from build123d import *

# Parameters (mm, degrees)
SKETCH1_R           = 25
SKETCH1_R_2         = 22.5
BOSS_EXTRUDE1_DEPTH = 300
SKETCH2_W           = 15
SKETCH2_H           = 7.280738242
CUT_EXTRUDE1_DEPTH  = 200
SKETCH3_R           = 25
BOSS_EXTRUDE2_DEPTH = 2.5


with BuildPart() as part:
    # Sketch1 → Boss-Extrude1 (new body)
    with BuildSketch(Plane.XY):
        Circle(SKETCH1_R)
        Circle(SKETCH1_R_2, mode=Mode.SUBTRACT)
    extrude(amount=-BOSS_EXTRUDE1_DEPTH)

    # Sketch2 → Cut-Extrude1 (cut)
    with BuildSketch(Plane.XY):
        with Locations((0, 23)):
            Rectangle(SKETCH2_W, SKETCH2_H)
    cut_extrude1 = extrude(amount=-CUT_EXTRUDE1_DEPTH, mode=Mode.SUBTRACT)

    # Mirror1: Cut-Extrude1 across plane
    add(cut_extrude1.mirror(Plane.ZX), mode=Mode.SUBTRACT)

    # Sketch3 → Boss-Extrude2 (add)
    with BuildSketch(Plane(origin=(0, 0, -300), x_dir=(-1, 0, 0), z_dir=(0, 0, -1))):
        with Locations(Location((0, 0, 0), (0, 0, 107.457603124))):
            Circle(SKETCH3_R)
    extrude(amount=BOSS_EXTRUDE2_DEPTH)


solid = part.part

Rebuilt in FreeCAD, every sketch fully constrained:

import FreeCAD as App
import Part
import Sketcher
from FreeCAD import Vector


def add_polygon(sketch, points):
    """Adds a closed chain of lines whose ends are joined by coincident constraints."""
    first, n = sketch.GeometryCount, len(points)
    for a, b in zip(points, points[1:] + points[:1]):
        sketch.addGeometry(Part.LineSegment(App.Vector(*a, 0), App.Vector(*b, 0)), False)
    for i in range(n):
        sketch.addConstraint(Sketcher.Constraint("Coincident", first + i, 2, first + (i + 1) % n, 1))

doc = App.newDocument("Part")
body = doc.addObject("PartDesign::Body", "Body")

# Sketch on XY plane
sketch1 = body.newObject("Sketcher::SketchObject", "Sketch")
sketch1.AttachmentSupport = (doc.getObject("XY_Plane"), [""])
sketch1.MapMode = "FlatFace"
sketch1.addGeometry(Part.Circle(Vector(0, 0, 0), Vector(0, 0, 1), 25), False)
sketch1.addGeometry(Part.Circle(Vector(0, 0, 0), Vector(0, 0, 1), 22), False)
sketch1.addConstraint(Sketcher.Constraint("Coincident", 0, 3, -1, 1))
sketch1.addConstraint(Sketcher.Constraint("Coincident", 1, 3, -1, 1))
sketch1.addConstraint(Sketcher.Constraint("Diameter", 0, 50.0))
sketch1.addConstraint(Sketcher.Constraint("Diameter", 1, 45.0))
pad1 = body.newObject("PartDesign::Pad", "Pad")
pad1.Profile = sketch1
pad1.Length = 300
pad1.Reversed = True

# Sketch on XY plane
sketch2 = body.newObject("Sketcher::SketchObject", "Sketch001")
sketch2.AttachmentSupport = (doc.getObject("XY_Plane"), [""])
sketch2.MapMode = "FlatFace"
add_polygon(sketch2, [(-8, 27), (-8, 19), (8, 19), (8, 27)])  # lines 0-3
sketch2.addConstraint(Sketcher.Constraint("Vertical", 0))
sketch2.addConstraint(Sketcher.Constraint("Horizontal", 1))
sketch2.addConstraint(Sketcher.Constraint("Vertical", 2))
sketch2.addConstraint(Sketcher.Constraint("Horizontal", 3))
sketch2.addConstraint(Sketcher.Constraint("DistanceX", 1, 1, 1, 2, 15.0))
sketch2.addConstraint(Sketcher.Constraint("DistanceX", 0, 2, -1, 1, 7.5))
sketch2.addConstraint(Sketcher.Constraint("DistanceY", 0, 2, 0, 1, 7.280738))
sketch2.addConstraint(Sketcher.Constraint("DistanceY", -1, 1, 0, 2, 19.359631))
pocket1 = body.newObject("PartDesign::Pocket", "Pocket")
pocket1.Profile = sketch2
pocket1.Length = 200
doc.recompute()

mirrored = body.newObject("PartDesign::Mirrored", "Mirrored")
mirrored.Originals = [pocket1]
mirrored.MirrorPlane = (doc.getObject("XZ_Plane"), [""])
body.Tip = mirrored

# Sketch on XY plane
sketch3 = body.newObject("Sketcher::SketchObject", "Sketch002")
sketch3.AttachmentSupport = (doc.getObject("XY_Plane"), [""])
sketch3.MapMode = "FlatFace"
sketch3.AttachmentOffset = App.Placement(Vector(0, 0, -300), App.Rotation())
sketch3.addGeometry(Part.Circle(Vector(0, 0, 0), Vector(0, 0, 1), 25), False)
sketch3.addConstraint(Sketcher.Constraint("Coincident", 0, 3, -1, 1))
sketch3.addConstraint(Sketcher.Constraint("Diameter", 0, 50.0))
pad2 = body.newObject("PartDesign::Pad", "Pad001")
pad2.Profile = sketch3
pad2.Length = 2.5
pad2.Reversed = True

doc.recompute()
